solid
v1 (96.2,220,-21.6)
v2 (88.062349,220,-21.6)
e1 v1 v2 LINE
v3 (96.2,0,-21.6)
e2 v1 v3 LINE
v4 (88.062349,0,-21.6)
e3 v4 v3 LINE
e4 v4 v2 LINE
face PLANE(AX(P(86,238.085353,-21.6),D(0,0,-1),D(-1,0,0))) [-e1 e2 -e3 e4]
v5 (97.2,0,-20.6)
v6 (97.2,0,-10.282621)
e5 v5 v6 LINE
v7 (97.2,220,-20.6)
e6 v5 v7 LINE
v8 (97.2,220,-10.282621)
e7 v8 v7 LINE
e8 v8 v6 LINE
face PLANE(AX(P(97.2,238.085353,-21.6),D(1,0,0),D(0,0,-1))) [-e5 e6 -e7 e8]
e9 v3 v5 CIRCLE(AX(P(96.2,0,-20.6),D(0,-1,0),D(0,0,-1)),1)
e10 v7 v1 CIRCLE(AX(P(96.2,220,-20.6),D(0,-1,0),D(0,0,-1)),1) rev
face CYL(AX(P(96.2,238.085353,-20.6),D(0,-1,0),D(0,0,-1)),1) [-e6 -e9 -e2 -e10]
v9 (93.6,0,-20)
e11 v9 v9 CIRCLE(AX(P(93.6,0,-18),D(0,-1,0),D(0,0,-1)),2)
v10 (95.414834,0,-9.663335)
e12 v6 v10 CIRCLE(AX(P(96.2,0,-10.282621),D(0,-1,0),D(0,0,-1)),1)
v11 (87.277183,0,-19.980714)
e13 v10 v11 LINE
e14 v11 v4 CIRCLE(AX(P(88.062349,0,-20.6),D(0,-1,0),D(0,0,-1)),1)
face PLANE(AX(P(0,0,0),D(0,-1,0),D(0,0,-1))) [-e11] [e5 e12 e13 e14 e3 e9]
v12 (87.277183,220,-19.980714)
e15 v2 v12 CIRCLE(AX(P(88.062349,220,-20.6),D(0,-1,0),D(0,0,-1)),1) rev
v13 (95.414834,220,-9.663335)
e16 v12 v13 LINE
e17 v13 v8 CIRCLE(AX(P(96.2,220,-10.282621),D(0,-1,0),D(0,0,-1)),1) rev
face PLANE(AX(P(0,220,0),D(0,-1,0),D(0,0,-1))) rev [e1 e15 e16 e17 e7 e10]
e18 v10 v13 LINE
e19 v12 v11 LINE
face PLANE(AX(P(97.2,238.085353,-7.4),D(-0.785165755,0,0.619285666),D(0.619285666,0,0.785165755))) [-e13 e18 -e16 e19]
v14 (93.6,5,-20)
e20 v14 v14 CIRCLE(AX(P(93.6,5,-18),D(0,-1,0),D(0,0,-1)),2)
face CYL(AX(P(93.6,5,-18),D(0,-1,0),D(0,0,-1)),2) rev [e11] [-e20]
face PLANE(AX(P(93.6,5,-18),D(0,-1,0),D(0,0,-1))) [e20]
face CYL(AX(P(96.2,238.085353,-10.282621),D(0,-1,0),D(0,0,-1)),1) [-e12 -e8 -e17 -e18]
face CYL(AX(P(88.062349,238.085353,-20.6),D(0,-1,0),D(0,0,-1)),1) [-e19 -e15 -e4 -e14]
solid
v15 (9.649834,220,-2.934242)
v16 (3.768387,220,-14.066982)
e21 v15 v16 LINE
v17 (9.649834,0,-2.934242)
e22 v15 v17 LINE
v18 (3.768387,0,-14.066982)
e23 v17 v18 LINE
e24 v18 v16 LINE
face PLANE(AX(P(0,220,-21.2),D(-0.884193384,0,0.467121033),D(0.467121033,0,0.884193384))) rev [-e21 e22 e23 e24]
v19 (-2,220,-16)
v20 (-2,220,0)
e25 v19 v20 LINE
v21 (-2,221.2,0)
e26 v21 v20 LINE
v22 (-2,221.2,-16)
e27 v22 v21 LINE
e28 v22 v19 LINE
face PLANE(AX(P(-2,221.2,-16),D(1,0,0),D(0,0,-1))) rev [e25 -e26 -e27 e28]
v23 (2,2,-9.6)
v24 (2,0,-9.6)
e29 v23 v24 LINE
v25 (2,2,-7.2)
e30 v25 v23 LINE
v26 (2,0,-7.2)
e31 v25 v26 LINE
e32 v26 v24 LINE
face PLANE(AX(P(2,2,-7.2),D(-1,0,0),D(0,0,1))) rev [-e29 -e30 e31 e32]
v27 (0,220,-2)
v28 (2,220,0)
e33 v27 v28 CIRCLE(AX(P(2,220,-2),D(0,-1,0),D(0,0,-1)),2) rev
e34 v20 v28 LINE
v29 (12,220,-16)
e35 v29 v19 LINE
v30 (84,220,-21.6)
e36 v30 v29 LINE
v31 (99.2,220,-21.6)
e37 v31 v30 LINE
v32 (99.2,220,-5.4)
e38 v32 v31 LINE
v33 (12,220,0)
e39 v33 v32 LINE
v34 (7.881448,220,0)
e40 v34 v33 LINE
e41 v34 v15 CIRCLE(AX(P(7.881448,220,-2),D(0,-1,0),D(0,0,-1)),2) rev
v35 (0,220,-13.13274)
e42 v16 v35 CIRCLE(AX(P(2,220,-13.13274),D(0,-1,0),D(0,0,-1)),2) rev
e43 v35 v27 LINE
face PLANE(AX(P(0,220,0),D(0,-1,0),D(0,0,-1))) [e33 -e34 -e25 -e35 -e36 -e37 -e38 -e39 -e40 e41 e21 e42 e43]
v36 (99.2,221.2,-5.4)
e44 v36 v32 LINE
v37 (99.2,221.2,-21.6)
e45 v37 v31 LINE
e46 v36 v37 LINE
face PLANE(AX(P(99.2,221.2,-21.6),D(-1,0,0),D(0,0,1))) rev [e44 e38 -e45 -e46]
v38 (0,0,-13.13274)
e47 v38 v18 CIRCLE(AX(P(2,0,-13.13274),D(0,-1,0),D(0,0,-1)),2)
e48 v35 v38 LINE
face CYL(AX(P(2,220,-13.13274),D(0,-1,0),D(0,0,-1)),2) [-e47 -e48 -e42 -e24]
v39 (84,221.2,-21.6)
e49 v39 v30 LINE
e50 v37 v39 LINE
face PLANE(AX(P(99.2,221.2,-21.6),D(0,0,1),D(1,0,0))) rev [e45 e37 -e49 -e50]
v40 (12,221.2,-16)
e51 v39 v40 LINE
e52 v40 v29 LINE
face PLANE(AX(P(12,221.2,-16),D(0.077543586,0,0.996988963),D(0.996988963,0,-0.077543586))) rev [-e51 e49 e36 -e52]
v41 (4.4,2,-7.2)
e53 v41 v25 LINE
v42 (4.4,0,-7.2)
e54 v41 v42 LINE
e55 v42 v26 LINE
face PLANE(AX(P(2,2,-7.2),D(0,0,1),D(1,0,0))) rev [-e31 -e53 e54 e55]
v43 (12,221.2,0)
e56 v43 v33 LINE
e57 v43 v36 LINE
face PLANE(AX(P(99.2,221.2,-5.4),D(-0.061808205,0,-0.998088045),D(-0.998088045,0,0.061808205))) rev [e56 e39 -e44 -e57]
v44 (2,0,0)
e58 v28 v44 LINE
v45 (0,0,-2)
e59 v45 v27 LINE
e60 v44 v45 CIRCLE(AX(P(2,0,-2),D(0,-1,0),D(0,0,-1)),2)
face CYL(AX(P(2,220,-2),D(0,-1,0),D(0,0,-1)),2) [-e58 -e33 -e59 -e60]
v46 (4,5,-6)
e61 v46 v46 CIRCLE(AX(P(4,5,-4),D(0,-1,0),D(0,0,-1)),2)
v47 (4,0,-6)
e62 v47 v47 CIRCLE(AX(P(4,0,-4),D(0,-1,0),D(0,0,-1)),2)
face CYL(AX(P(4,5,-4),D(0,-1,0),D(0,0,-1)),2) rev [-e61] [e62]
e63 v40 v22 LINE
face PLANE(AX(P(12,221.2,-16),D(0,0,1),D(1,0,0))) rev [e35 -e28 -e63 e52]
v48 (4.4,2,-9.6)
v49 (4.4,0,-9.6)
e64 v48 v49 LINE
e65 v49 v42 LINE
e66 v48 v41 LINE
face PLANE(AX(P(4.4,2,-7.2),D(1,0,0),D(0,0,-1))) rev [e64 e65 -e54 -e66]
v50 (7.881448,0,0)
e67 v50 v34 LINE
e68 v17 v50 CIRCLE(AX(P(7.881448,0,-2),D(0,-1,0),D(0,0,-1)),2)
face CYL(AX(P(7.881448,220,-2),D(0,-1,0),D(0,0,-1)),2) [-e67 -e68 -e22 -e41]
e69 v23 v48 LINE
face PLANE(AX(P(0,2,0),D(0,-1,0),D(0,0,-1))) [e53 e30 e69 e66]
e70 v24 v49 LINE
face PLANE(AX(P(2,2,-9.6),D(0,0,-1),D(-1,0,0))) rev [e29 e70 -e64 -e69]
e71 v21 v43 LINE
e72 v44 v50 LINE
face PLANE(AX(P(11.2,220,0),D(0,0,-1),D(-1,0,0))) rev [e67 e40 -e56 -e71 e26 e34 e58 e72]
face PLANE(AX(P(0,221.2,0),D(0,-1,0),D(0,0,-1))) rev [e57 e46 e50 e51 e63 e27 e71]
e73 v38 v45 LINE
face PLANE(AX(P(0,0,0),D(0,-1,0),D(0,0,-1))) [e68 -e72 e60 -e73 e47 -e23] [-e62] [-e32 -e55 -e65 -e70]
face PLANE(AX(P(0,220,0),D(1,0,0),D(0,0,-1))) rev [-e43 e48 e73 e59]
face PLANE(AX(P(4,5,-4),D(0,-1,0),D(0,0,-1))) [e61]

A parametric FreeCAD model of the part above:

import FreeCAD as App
import Part
import Sketcher
Q = App.Units.Quantity


def edges_at(feature, points):
    """Names of the edges that pass closest to the given points."""
    edges = feature.Shape.Edges
    near = lambda p: min(range(len(edges)), key=lambda i: edges[i].distToShape(Part.Vertex(*p))[0])
    return sorted({f"Edge{near(p) + 1}" for p in points})


def add_polygon(sketch, points):
    """Adds a closed chain of lines whose ends are joined by coincident constraints."""
    first, n = sketch.GeometryCount, len(points)
    for a, b in zip(points, points[1:] + points[:1]):
        sketch.addGeometry(Part.LineSegment(App.Vector(*a, 0), App.Vector(*b, 0)), False)
    for i in range(n):
        sketch.addConstraint(Sketcher.Constraint("Coincident", first + i, 2, first + (i + 1) % n, 1))

doc = App.newDocument("Part")
params = doc.addObject("Spreadsheet::Sheet", "Params")
for row, (alias, value) in enumerate([
    ("sketch1_width", "11.2 mm"),
    ("sketch1_height", "21.2 mm"),
    ("pad1_length", "220 mm"),
    ("fillet_radius", "2 mm"),
    ("sketch2_width", "11.2 mm"),
    ("sketch2_height", "14.2 mm"),
    ("pad2_length", "220 mm"),
    ("sketch3_diameter", "4 mm"),
    ("pad3_length", "5 mm"),
    ("sketch4_width", "2.4 mm"),
    ("pocket1_length", "2 mm"),
    ("sketch5_width", "14 mm"),
    ("sketch5_height", "16 mm"),
    ("sketch5_width2", "15.2 mm"),
    ("sketch5_height2", "16.2 mm"),
    ("pad4_length", "1.2 mm"),
    ("fillet2_radius", "1 mm"),
], start=1):
    params.set(f"A{row}", alias)
    params.set(f"B{row}", "=" + value)
    params.setAlias(f"B{row}", alias)

body = doc.addObject("PartDesign::Body", "Body")

# Sketch on XZ plane
sketch1 = body.newObject("Sketcher::SketchObject", "Sketch")
sketch1.AttachmentSupport = (doc.getObject("XZ_Plane"), [""])
sketch1.MapMode = "FlatFace"
add_polygon(sketch1, [(0, -21), (0, 0), (11, 0)])  # lines 0-2
sketch1.addConstraint([
    Sketcher.Constraint("Vertical", 0),
    Sketcher.Constraint("Horizontal", 1),
    Sketcher.Constraint("Coincident", 0, 2, -1, 1),
    Sketcher.Constraint("DistanceX", 1, 1, 1, 2, Q("11.2 mm")),
    Sketcher.Constraint("DistanceY", 0, 1, 0, 2, Q("21.2 mm")),
])
sketch1.setExpression("Constraints[6]", "Params.sketch1_width")
sketch1.setExpression("Constraints[7]", "Params.sketch1_height")
pad1 = body.newObject("PartDesign::Pad", "Pad")
pad1.Profile = sketch1
pad1.setExpression("Length", "Params.pad1_length")
pad1.Reversed = True
doc.recompute()

fillet = body.newObject("PartDesign::Fillet", "Fillet")
fillet.Base = (pad1, edges_at(pad1, [(0, 110, 0), (0, 110, -21.2), (11.2, 110, 0)]))
fillet.setExpression("Radius", "Params.fillet_radius")
body2 = doc.addObject("PartDesign::Body", "Body001")

# Sketch on XZ plane
sketch2 = body2.newObject("Sketcher::SketchObject", "Sketch001")
sketch2.AttachmentSupport = (doc.getObject("XZ_Plane001"), [""])
sketch2.MapMode = "FlatFace"
add_polygon(sketch2, [(86, -22), (97, -22), (97, -7)])  # lines 0-2
sketch2.addConstraint([
    Sketcher.Constraint("Horizontal", 0),
    Sketcher.Constraint("Vertical", 1),
    Sketcher.Constraint("DistanceX", 0, 1, 0, 2, Q("11.2 mm")),
    Sketcher.Constraint("DistanceY", 1, 1, 1, 2, Q("14.2 mm")),
    Sketcher.Constraint("DistanceX", -1, 1, 2, 2, Q("86 mm")),
    Sketcher.Constraint("DistanceY", 0, 2, -1, 1, Q("21.6 mm")),
])
sketch2.setExpression("Constraints[5]", "Params.sketch2_width")
sketch2.setExpression("Constraints[6]", "Params.sketch2_height")
pad2 = body2.newObject("PartDesign::Pad", "Pad001")
pad2.Profile = sketch2
pad2.setExpression("Length", "Params.pad2_length")
pad2.Reversed = True
body3 = doc.addObject("PartDesign::Body", "Body002")
body3.AllowCompound = True

# Sketch on XZ plane
sketch3 = body3.newObject("Sketcher::SketchObject", "Sketch002")
sketch3.AttachmentSupport = (doc.getObject("XZ_Plane002"), [""])
sketch3.MapMode = "FlatFace"
sketch3.addGeometry([
    Part.Circle(App.Vector(4, -4, 0), App.Vector(0, 0, 1), 2),
    Part.Circle(App.Vector(93.6, -18, 0), App.Vector(0, 0, 1), 2),
], False)
sketch3.addConstraint([
    Sketcher.Constraint("Equal", 0, 1),
    Sketcher.Constraint("Diameter", 0, Q("4 mm")),
    Sketcher.Constraint("DistanceX", -1, 1, 0, 3, Q("4 mm")),
    Sketcher.Constraint("DistanceY", 0, 3, -1, 1, Q("4 mm")),
    Sketcher.Constraint("DistanceY", 1, 3, -1, 1, Q("18 mm")),
    Sketcher.Constraint("DistanceX", -1, 1, 1, 3, Q("93.6 mm")),
])
sketch3.setExpression("Constraints[1]", "Params.sketch3_diameter")
pad3 = body3.newObject("PartDesign::Pad", "Pad002")
pad3.Profile = sketch3
pad3.setExpression("Length", "Params.pad3_length")
pad3.Reversed = True
doc.recompute()

body4 = doc.addObject("PartDesign::Body", "Body003")
body4.BaseFeature = body3
boolean = body.newObject("PartDesign::Boolean", "Boolean")
boolean.Type = "Cut"
boolean.addObjects([body4])
doc.recompute()

# Sketch on XZ plane
sketch4 = body.newObject("Sketcher::SketchObject", "Sketch003")
sketch4.AttachmentSupport = (doc.getObject("XZ_Plane"), [""])
sketch4.MapMode = "FlatFace"
add_polygon(sketch4, [(2, -7.2), (2, -9.6), (4.4, -9.6), (4.4, -7.2)])  # lines 0-3
sketch4.addConstraint([
    Sketcher.Constraint("Vertical", 0),
    Sketcher.Constraint("Horizontal", 1),
    Sketcher.Constraint("Vertical", 2),
    Sketcher.Constraint("Horizontal", 3),
    Sketcher.Constraint("Equal", 3, 0),
    Sketcher.Constraint("DistanceX", 1, 1, 1, 2, Q("2.4 mm")),
    Sketcher.Constraint("DistanceX", -1, 1, 0, 2, Q("2 mm")),
    Sketcher.Constraint("DistanceY", 0, 2, -1, 1, Q("9.6 mm")),
])
sketch4.setExpression("Constraints[9]", "Params.sketch4_width")
pocket1 = body.newObject("PartDesign::Pocket", "Pocket")
pocket1.Profile = sketch4
pocket1.setExpression("Length", "Params.pocket1_length")

# Sketch on XZ plane
sketch5 = body.newObject("Sketcher::SketchObject", "Sketch004")
sketch5.AttachmentSupport = (doc.getObject("XZ_Plane"), [""])
sketch5.MapMode = "FlatFace"
sketch5.AttachmentOffset = App.Placement(App.Vector(0, 0, -220), App.Rotation())
add_polygon(sketch5, [(99, -22), (84, -22), (12, -16), (-2, -16), (-2, 0), (12, 0), (99, -5)])  # lines 0-6
sketch5.addConstraint([
    Sketcher.Constraint("Horizontal", 0),
    Sketcher.Constraint("Horizontal", 2),
    Sketcher.Constraint("Vertical", 3),
    Sketcher.Constraint("Horizontal", 4),
    Sketcher.Constraint("Vertical", 6),
    Sketcher.Constraint("PointOnObject", 3, 2, -1),
    Sketcher.Constraint("Vertical", 1, 2, 4, 2),
    Sketcher.Constraint("DistanceX", 2, 2, 2, 1, Q("14 mm")),
    Sketcher.Constraint("DistanceY", 3, 1, 3, 2, Q("16 mm")),
    Sketcher.Constraint("DistanceX", 0, 2, 0, 1, Q("15.2 mm")),
    Sketcher.Constraint("DistanceY", 6, 2, 6, 1, Q("16.2 mm")),
    Sketcher.Constraint("DistanceX", -1, 1, 0, 2, Q("84 mm")),
    Sketcher.Constraint("DistanceX", -1, 1, 1, 2, Q("12 mm")),
    Sketcher.Constraint("DistanceY", 0, 2, -1, 1, Q("21.6 mm")),
])
sketch5.setExpression("Constraints[14]", "Params.sketch5_width")
sketch5.setExpression("Constraints[15]", "Params.sketch5_height")
sketch5.setExpression("Constraints[16]", "Params.sketch5_width2")
sketch5.setExpression("Constraints[17]", "Params.sketch5_height2")
pad4 = body.newObject("PartDesign::Pad", "Pad003")
pad4.Profile = sketch5
pad4.setExpression("Length", "Params.pad4_length")
pad4.Reversed = True
doc.recompute()

boolean2 = body2.newObject("PartDesign::Boolean", "Boolean001")
boolean2.Type = "Cut"
boolean2.addObjects([body3])
doc.recompute()

fillet2 = body2.newObject("PartDesign::Fillet", "Fillet001")
fillet2.Base = (boolean2, edges_at(boolean2, [(97.2, 110, -7.4), (86, 110, -21.6), (97.2, 110, -21.6)]))
fillet2.setExpression("Radius", "Params.fillet2_radius")

doc.recompute()
